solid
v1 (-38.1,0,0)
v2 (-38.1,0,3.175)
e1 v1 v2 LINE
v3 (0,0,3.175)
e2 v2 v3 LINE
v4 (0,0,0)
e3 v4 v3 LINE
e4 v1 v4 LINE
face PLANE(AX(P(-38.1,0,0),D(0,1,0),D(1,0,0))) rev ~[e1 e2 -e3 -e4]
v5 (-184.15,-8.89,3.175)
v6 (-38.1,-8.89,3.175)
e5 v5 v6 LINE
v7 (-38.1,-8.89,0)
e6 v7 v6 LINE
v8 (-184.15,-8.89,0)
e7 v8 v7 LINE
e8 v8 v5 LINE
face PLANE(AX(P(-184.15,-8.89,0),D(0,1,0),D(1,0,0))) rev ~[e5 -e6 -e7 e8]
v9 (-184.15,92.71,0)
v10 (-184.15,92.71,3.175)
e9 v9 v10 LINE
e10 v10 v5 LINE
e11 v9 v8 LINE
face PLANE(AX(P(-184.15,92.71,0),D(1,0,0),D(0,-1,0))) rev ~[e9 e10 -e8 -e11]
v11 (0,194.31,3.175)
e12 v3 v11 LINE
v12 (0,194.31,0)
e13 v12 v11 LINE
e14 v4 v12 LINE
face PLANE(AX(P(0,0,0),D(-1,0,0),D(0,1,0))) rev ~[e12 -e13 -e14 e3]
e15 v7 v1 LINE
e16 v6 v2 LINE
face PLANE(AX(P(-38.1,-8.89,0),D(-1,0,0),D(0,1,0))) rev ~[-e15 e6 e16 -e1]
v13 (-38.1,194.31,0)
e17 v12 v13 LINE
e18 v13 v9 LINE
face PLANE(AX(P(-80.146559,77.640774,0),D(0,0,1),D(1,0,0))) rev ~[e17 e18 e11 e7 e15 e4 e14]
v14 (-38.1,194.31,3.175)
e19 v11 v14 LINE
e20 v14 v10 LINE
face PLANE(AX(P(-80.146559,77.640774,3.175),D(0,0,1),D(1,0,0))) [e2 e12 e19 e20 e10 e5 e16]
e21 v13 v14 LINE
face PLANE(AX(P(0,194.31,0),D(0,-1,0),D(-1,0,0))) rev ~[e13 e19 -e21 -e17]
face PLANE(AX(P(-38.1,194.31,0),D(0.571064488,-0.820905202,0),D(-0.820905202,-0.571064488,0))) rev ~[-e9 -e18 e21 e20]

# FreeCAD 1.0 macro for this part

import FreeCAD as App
import Part
import Sketcher
Q = App.Units.Quantity


def add_polygon(sketch, points):
    """Adds a closed chain of lines whose ends are joined by coincident constraints."""
    first, n = sketch.GeometryCount, len(points)
    for a, b in zip(points, points[1:] + points[:1]):
        sketch.addGeometry(Part.LineSegment(App.Vector(*a, 0), App.Vector(*b, 0)), False)
    for i in range(n):
        sketch.addConstraint(Sketcher.Constraint("Coincident", first + i, 2, first + (i + 1) % n, 1))

doc = App.newDocument("Part")
body = doc.addObject("PartDesign::Body", "Body")

# Sketch on XY plane
sketch1 = body.newObject("Sketcher::SketchObject", "Sketch")
sketch1.AttachmentSupport = (doc.getObject("XY_Plane"), [""])
sketch1.MapMode = "FlatFace"
add_polygon(sketch1, [(0, 0), (0, 194), (-38, 194), (-184, 93), (-184, -9), (-38, -9), (-38, 0)])  # lines 0-6
sketch1.addConstraint([
    Sketcher.Constraint("Vertical", 0),
    Sketcher.Constraint("Horizontal", 1),
    Sketcher.Constraint("Vertical", 3),
    Sketcher.Constraint("Horizontal", 4),
    Sketcher.Constraint("Vertical", 5),
    Sketcher.Constraint("Horizontal", 6),
    Sketcher.Constraint("Coincident", 6, 2, -1, 1),
    Sketcher.Constraint("Vertical", 1, 2, 4, 2),
    Sketcher.Constraint("DistanceY", 3, 2, 3, 1, Q("4 in")),
    Sketcher.Constraint("DistanceX", 1, 2, 1, 1, Q("1.5 in")),
    Sketcher.Constraint("DistanceY", 2, 2, 1, 2, Q("4 in")),
    Sketcher.Constraint("DistanceX", 4, 1, 4, 2, Q("5.75 in")),
    Sketcher.Constraint("DistanceY", 0, 1, 0, 2, Q("7.65 in")),
])
pad1 = body.newObject("PartDesign::Pad", "Pad")
pad1.Profile = sketch1
pad1.Length = Q("0.125 in")

doc.recompute()
